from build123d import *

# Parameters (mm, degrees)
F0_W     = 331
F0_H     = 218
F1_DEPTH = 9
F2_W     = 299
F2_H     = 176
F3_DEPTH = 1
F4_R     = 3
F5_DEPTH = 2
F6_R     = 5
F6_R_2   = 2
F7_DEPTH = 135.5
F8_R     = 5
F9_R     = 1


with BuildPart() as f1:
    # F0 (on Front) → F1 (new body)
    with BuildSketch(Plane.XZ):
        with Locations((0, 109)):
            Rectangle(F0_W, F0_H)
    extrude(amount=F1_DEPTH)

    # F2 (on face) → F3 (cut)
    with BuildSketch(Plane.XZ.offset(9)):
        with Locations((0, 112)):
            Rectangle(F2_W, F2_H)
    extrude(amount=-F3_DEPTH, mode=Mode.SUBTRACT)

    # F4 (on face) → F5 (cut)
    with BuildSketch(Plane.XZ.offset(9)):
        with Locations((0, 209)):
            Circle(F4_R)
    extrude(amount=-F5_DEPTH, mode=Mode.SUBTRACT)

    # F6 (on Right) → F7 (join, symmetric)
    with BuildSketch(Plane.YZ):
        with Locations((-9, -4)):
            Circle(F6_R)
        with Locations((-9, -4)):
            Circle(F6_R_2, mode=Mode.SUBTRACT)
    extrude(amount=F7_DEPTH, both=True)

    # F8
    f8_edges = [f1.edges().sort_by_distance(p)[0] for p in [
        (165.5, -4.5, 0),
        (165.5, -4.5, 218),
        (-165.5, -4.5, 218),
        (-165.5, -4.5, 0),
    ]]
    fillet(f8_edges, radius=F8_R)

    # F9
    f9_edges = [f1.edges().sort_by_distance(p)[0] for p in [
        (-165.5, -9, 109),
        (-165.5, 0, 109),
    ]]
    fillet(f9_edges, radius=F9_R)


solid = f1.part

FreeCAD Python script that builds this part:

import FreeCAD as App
import Part
import Sketcher

V = App.Vector


def edges_at(feature, points):
    """Names of the edges that pass closest to the given points."""
    edges = feature.Shape.Edges
    near = lambda p: min(range(len(edges)), key=lambda i: edges[i].distToShape(Part.Vertex(*p))[0])
    return sorted({f"Edge{near(p) + 1}" for p in points})

doc = App.newDocument("Part")
body = doc.addObject("PartDesign::Body", "Body")

sketch1 = body.newObject("Sketcher::SketchObject", "Sketch")
sketch1.AttachmentSupport = (doc.getObject("XZ_Plane"), [""])
sketch1.MapMode = "FlatFace"
sketch1.addGeometry(Part.LineSegment(V(-165.5, 218, 0), V(-165.5, 0, 0)), False)
sketch1.addGeometry(Part.LineSegment(V(-165.5, 0, 0), V(165.5, 0, 0)), False)
sketch1.addGeometry(Part.LineSegment(V(165.5, 0, 0), V(165.5, 218, 0)), False)
sketch1.addGeometry(Part.LineSegment(V(165.5, 218, 0), V(-165.5, 218, 0)), False)
sketch1.addConstraint(Sketcher.Constraint("Coincident", 0, 2, 1, 1))
sketch1.addConstraint(Sketcher.Constraint("Coincident", 1, 2, 2, 1))
sketch1.addConstraint(Sketcher.Constraint("Coincident", 2, 2, 3, 1))
sketch1.addConstraint(Sketcher.Constraint("Coincident", 3, 2, 0, 1))
sketch1.addConstraint(Sketcher.Constraint("Vertical", 0))
sketch1.addConstraint(Sketcher.Constraint("Horizontal", 1))
sketch1.addConstraint(Sketcher.Constraint("Vertical", 2))
sketch1.addConstraint(Sketcher.Constraint("Horizontal", 3))
sketch1.addConstraint(Sketcher.Constraint("Symmetric", 0, 2, 1, 2, -1, 1))
sketch1.addConstraint(Sketcher.Constraint("DistanceX", 1, 1, 1, 2, 331.0))
sketch1.addConstraint(Sketcher.Constraint("DistanceY", 0, 2, 0, 1, 218.0))
pad1 = body.newObject("PartDesign::Pad", "Pad")
pad1.Profile = sketch1
pad1.Length = 9

sketch2 = body.newObject("Sketcher::SketchObject", "Sketch001")
sketch2.AttachmentSupport = (doc.getObject("XZ_Plane"), [""])
sketch2.MapMode = "FlatFace"
sketch2.AttachmentOffset = App.Placement(V(0, 0, 9), App.Rotation())
sketch2.addGeometry(Part.LineSegment(V(-149.5, 200, 0), V(-149.5, 24, 0)), False)
sketch2.addGeometry(Part.LineSegment(V(-149.5, 24, 0), V(149.5, 24, 0)), False)
sketch2.addGeometry(Part.LineSegment(V(149.5, 24, 0), V(149.5, 200, 0)), False)
sketch2.addGeometry(Part.LineSegment(V(149.5, 200, 0), V(-149.5, 200, 0)), False)
sketch2.addConstraint(Sketcher.Constraint("Coincident", 0, 2, 1, 1))
sketch2.addConstraint(Sketcher.Constraint("Coincident", 1, 2, 2, 1))
sketch2.addConstraint(Sketcher.Constraint("Coincident", 2, 2, 3, 1))
sketch2.addConstraint(Sketcher.Constraint("Coincident", 3, 2, 0, 1))
sketch2.addConstraint(Sketcher.Constraint("Vertical", 0))
sketch2.addConstraint(Sketcher.Constraint("Horizontal", 1))
sketch2.addConstraint(Sketcher.Constraint("Vertical", 2))
sketch2.addConstraint(Sketcher.Constraint("Horizontal", 3))
sketch2.addConstraint(Sketcher.Constraint("DistanceX", 1, 1, 1, 2, 299.0))
sketch2.addConstraint(Sketcher.Constraint("DistanceY", 0, 2, 0, 1, 176.0))
sketch2.addConstraint(Sketcher.Constraint("DistanceY", -1, 1, 0, 2, 24.0))
sketch2.addConstraint(Sketcher.Constraint("DistanceX", 0, 2, -1, 1, 149.5))
pocket1 = body.newObject("PartDesign::Pocket", "Pocket")
pocket1.Profile = sketch2
pocket1.Length = 1

sketch3 = body.newObject("Sketcher::SketchObject", "Sketch002")
sketch3.AttachmentSupport = (doc.getObject("XZ_Plane"), [""])
sketch3.MapMode = "FlatFace"
sketch3.AttachmentOffset = App.Placement(V(0, 0, 9), App.Rotation())
sketch3.addGeometry(Part.Circle(V(0, 209, 0), V(0, 0, 1), 3), False)
sketch3.addConstraint(Sketcher.Constraint("PointOnObject", 0, 3, -2))
sketch3.addConstraint(Sketcher.Constraint("Diameter", 0, 6.0))
sketch3.addConstraint(Sketcher.Constraint("DistanceY", -1, 1, 0, 3, 209.0))
pocket2 = body.newObject("PartDesign::Pocket", "Pocket001")
pocket2.Profile = sketch3
pocket2.Length = 2

sketch4 = body.newObject("Sketcher::SketchObject", "Sketch003")
sketch4.AttachmentSupport = (doc.getObject("YZ_Plane"), [""])
sketch4.MapMode = "FlatFace"
sketch4.addGeometry(Part.Circle(V(-9, -4, 0), V(0, 0, 1), 5), False)
sketch4.addGeometry(Part.Circle(V(-9, -4, 0), V(0, 0, 1), 2), False)
sketch4.addConstraint(Sketcher.Constraint("Coincident", 1, 3, 0, 3))
sketch4.addConstraint(Sketcher.Constraint("Diameter", 0, 10.0))
sketch4.addConstraint(Sketcher.Constraint("Diameter", 1, 4.0))
sketch4.addConstraint(Sketcher.Constraint("DistanceX", 0, 3, -1, 1, 9.0))
sketch4.addConstraint(Sketcher.Constraint("DistanceY", 0, 3, -1, 1, 4.0))
pad2 = body.newObject("PartDesign::Pad", "Pad001")
pad2.Profile = sketch4
pad2.Length = 271
pad2.Midplane = True
doc.recompute()

fillet = body.newObject("PartDesign::Fillet", "Fillet")
fillet.Base = (pad2, edges_at(pad2, [
    (165.5, -4.5, 0),
    (165.5, -4.5, 218),
    (-165.5, -4.5, 218),
    (-165.5, -4.5, 0),
]))
fillet.Radius = 5
doc.recompute()

fillet2 = body.newObject("PartDesign::Fillet", "Fillet001")
fillet2.Base = (fillet, edges_at(fillet, [(-165.5, -9, 109), (-165.5, 0, 109)]))
fillet2.Radius = 1

doc.recompute()
